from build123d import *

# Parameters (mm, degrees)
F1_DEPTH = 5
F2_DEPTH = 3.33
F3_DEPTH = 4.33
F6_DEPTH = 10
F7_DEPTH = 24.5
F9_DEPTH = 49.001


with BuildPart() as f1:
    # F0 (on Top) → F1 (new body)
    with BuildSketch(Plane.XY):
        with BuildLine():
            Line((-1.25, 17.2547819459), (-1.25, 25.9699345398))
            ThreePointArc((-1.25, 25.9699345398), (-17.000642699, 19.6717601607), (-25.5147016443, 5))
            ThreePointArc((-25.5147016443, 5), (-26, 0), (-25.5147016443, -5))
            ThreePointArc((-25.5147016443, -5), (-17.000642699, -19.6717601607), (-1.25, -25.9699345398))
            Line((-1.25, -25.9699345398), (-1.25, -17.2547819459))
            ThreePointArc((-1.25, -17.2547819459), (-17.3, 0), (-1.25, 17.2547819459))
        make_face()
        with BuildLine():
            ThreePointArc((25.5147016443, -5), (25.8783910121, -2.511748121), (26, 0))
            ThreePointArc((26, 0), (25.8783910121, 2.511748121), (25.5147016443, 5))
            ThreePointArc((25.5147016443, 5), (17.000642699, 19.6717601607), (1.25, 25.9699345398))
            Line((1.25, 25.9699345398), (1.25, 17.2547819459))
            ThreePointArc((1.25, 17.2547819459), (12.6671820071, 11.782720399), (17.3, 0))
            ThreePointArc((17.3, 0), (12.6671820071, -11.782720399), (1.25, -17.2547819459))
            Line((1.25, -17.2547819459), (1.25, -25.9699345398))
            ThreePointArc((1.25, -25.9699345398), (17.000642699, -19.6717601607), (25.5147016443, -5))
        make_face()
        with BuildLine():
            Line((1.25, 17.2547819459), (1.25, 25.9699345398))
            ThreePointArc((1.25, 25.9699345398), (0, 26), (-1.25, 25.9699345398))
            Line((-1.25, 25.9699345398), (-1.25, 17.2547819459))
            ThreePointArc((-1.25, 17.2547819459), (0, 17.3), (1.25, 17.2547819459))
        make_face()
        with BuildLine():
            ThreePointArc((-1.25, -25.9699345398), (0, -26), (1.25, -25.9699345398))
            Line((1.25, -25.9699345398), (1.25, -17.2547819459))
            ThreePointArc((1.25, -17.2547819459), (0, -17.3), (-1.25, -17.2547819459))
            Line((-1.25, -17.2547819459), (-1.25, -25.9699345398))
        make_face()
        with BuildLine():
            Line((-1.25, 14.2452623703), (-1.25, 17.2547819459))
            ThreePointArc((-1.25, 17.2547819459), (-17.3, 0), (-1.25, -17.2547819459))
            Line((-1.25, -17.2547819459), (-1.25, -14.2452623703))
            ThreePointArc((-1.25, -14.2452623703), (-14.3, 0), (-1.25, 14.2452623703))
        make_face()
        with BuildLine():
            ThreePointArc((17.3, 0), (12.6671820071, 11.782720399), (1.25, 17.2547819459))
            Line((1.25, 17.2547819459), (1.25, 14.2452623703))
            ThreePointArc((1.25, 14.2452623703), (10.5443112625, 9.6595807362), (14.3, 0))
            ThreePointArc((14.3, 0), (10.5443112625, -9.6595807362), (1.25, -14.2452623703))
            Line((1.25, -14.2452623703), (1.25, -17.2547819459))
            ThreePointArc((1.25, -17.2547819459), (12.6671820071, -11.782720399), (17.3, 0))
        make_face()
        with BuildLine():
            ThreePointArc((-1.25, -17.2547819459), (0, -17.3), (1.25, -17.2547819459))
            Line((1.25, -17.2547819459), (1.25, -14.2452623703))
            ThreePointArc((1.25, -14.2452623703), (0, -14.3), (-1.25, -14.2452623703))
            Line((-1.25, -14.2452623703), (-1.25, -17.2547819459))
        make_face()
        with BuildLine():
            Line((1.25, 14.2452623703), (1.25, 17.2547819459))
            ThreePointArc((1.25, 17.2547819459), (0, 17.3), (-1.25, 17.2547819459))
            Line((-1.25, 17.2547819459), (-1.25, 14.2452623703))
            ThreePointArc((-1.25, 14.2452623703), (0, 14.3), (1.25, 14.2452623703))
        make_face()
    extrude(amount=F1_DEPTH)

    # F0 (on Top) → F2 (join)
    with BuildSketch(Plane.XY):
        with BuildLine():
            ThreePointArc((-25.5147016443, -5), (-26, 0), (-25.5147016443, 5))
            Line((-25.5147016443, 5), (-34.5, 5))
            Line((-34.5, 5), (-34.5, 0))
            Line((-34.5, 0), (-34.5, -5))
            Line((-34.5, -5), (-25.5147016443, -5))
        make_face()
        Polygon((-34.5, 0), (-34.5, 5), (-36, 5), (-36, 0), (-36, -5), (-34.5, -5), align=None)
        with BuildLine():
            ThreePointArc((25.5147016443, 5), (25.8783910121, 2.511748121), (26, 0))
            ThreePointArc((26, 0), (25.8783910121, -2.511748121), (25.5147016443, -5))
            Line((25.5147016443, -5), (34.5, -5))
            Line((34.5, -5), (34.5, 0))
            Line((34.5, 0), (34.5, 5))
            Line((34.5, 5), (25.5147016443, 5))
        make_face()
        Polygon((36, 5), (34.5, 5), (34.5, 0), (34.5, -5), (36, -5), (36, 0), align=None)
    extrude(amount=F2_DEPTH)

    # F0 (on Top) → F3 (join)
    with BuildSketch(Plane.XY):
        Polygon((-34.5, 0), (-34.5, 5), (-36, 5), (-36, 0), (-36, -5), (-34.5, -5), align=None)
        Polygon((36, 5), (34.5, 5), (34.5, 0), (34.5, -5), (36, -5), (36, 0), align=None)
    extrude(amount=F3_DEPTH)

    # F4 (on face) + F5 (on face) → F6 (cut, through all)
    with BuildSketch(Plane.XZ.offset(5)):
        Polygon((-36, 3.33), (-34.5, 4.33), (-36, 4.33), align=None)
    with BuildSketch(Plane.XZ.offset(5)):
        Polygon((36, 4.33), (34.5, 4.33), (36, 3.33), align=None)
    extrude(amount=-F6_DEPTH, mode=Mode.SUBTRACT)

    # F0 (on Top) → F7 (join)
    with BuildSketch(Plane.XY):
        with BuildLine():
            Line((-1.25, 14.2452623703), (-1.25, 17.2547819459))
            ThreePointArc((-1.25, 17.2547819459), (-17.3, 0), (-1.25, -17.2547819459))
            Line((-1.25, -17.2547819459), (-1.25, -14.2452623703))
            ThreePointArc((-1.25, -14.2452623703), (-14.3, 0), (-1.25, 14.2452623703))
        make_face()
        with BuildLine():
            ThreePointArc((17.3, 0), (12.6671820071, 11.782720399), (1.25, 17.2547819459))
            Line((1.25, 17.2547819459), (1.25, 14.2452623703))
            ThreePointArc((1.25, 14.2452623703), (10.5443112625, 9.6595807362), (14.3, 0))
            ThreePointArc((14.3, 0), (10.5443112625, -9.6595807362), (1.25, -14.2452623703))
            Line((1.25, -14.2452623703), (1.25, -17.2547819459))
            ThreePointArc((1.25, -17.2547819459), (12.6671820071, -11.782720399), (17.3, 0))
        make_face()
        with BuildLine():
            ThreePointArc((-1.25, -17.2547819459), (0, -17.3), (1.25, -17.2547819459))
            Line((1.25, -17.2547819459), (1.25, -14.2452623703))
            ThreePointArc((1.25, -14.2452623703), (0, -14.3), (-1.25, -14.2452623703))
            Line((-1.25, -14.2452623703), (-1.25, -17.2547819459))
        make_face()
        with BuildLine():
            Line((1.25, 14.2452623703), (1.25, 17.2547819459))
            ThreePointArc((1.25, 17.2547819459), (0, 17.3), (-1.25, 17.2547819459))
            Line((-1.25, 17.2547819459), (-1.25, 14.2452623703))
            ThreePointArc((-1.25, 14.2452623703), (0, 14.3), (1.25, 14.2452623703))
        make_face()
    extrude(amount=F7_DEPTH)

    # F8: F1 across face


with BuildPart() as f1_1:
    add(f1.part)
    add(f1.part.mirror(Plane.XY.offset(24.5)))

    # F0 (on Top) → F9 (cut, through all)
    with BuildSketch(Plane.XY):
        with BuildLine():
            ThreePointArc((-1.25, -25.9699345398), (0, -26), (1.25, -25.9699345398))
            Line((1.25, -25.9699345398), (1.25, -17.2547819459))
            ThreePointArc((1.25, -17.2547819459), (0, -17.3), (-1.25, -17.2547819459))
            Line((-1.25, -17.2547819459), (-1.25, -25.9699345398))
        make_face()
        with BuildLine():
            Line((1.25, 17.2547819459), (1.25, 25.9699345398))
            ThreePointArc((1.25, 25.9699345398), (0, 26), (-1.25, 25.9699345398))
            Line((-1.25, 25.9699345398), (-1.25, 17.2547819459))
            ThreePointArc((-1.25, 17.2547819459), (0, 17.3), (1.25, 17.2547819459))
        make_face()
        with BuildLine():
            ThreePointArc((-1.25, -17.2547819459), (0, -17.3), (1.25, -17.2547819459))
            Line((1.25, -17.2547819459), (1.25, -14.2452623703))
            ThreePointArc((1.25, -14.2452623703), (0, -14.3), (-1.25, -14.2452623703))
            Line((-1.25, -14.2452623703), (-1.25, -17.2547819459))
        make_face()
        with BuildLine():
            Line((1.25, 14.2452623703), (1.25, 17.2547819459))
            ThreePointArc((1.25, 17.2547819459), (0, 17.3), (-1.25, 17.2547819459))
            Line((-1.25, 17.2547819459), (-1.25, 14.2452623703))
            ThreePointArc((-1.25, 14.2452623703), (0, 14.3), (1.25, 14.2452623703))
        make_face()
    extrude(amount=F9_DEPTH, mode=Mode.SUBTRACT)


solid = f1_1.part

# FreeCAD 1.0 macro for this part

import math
import FreeCAD as App
import Part
import Sketcher

doc = App.newDocument("Part")
body = doc.addObject("PartDesign::Body", "Body")

# Sketch on XY plane
sketch1 = body.newObject("Sketcher::SketchObject", "Sketch")
sketch1.AttachmentSupport = (doc.getObject("XY_Plane"), [""])
sketch1.MapMode = "FlatFace"
sketch1.addGeometry([
    Part.ArcOfCircle(Part.Circle(App.Vector(0, 0, 0), App.Vector(0, 0, 1), 26), math.radians(92.755667), math.radians(168.912511)),  # 0
    Part.ArcOfCircle(Part.Circle(App.Vector(0, 0, 0), App.Vector(0, 0, 1), 26), math.radians(168.912511), math.radians(191.087489)),  # 1
    Part.ArcOfCircle(Part.Circle(App.Vector(0, 0, 0), App.Vector(0, 0, 1), 26), math.radians(-168.912511), math.radians(-92.755667)),  # 2
    Part.ArcOfCircle(Part.Circle(App.Vector(0, 0, 0), App.Vector(0, 0, 1), 26), math.radians(-92.755667), math.radians(-87.244333)),  # 3
    Part.ArcOfCircle(Part.Circle(App.Vector(0, 0, 0), App.Vector(0, 0, 1), 26), math.radians(-87.244333), math.radians(-11.087489)),  # 4
    Part.ArcOfCircle(Part.Circle(App.Vector(0, 0, 0), App.Vector(0, 0, 1), 26), math.radians(-11.087489), math.radians(0)),  # 5
    Part.ArcOfCircle(Part.Circle(App.Vector(0, 0, 0), App.Vector(0, 0, 1), 26), math.radians(0), math.radians(11.087489)),  # 6
    Part.ArcOfCircle(Part.Circle(App.Vector(0, 0, 0), App.Vector(0, 0, 1), 26), math.radians(11.087489), math.radians(87.244333)),  # 7
    Part.ArcOfCircle(Part.Circle(App.Vector(0, 0, 0), App.Vector(0, 0, 1), 26), math.radians(87.244333), math.radians(92.755667)),  # 8
    Part.ArcOfCircle(Part.Circle(App.Vector(0, 0, 0), App.Vector(0, 0, 1), 14.3), math.radians(-84.985228), math.radians(84.985228)),  # 9
    Part.ArcOfCircle(Part.Circle(App.Vector(0, 0, 0), App.Vector(0, 0, 1), 14.3), math.radians(-95.014772), math.radians(-84.985228)),  # 10
    Part.ArcOfCircle(Part.Circle(App.Vector(0, 0, 0), App.Vector(0, 0, 1), 14.3), math.radians(95.014772), math.radians(264.985228)),  # 11
    Part.ArcOfCircle(Part.Circle(App.Vector(0, 0, 0), App.Vector(0, 0, 1), 14.3), math.radians(84.985228), math.radians(95.014772)),  # 12
], False)
sketch1.addConstraint([
    Sketcher.Constraint("Tangent", 0, 2, 1, 1),
    Sketcher.Constraint("Tangent", 1, 2, 2, 1),
    Sketcher.Constraint("Tangent", 2, 2, 3, 1),
    Sketcher.Constraint("Tangent", 3, 2, 4, 1),
    Sketcher.Constraint("Tangent", 4, 2, 5, 1),
    Sketcher.Constraint("Tangent", 5, 2, 6, 1),
    Sketcher.Constraint("Tangent", 6, 2, 7, 1),
    Sketcher.Constraint("Tangent", 7, 2, 8, 1),
    Sketcher.Constraint("Tangent", 8, 2, 0, 1),
    Sketcher.Constraint("Tangent", 9, 1, 10, 2),
    Sketcher.Constraint("Tangent", 10, 1, 11, 2),
    Sketcher.Constraint("Tangent", 11, 1, 12, 2),
    Sketcher.Constraint("Tangent", 12, 1, 9, 2),
    Sketcher.Constraint("Coincident", 0, 3, -1, 1),
    Sketcher.Constraint("Coincident", 2, 3, -1, 1),
    Sketcher.Constraint("Coincident", 4, 3, -1, 1),
    Sketcher.Constraint("Coincident", 6, 3, -1, 1),
    Sketcher.Constraint("Coincident", 9, 3, -1, 1),
    Sketcher.Constraint("Equal", 9, 10),
    Sketcher.Constraint("PointOnObject", 5, 2, -1),
    Sketcher.Constraint("Horizontal", 2, 2, 3, 2),
    Sketcher.Constraint("Horizontal", 1, 2, 4, 2),
    Sketcher.Constraint("Horizontal", 0, 2, 6, 2),
    Sketcher.Constraint("Horizontal", 7, 2, 8, 2),
    Sketcher.Constraint("Horizontal", 9, 1, 10, 1),
    Sketcher.Constraint("Horizontal", 11, 1, 12, 1),
    Sketcher.Constraint("Vertical", 0, 2, 1, 2),
    Sketcher.Constraint("Vertical", 3, 2, 7, 2),
    Sketcher.Constraint("Vertical", 7, 2, 9, 1),
    Sketcher.Constraint("Vertical", 10, 1, 11, 1),
    Sketcher.Constraint("Radius", 0, 26.0),
    Sketcher.Constraint("Radius", 9, 14.3),
    Sketcher.Constraint("DistanceY", -1, 1, 0, 2, 5.0),
    Sketcher.Constraint("DistanceX", 2, 2, 3, 2, 2.5),
])
pad1 = body.newObject("PartDesign::Pad", "Pad")
pad1.Profile = sketch1
pad1.Length = 5

# Sketch on XY plane
sketch2 = body.newObject("Sketcher::SketchObject", "Sketch001")
sketch2.AttachmentSupport = (doc.getObject("XY_Plane"), [""])
sketch2.MapMode = "FlatFace"
sketch2.addGeometry([
    Part.ArcOfCircle(Part.Circle(App.Vector(0, 0, 0), App.Vector(0, 0, 1), 26), math.radians(168.912511), math.radians(191.087489)),  # 0
    Part.LineSegment(App.Vector(-25.514702, 5, 0), App.Vector(-36, 5, 0)),  # 1
    Part.LineSegment(App.Vector(-36, 5, 0), App.Vector(-36, -5, 0)),  # 2
    Part.LineSegment(App.Vector(-36, -5, 0), App.Vector(-25.514702, -5, 0)),  # 3
    Part.ArcOfCircle(Part.Circle(App.Vector(0, 0, 0), App.Vector(0, 0, 1), 26), math.radians(0), math.radians(11.087489)),  # 4
    Part.ArcOfCircle(Part.Circle(App.Vector(0, 0, 0), App.Vector(0, 0, 1), 26), math.radians(-11.087489), math.radians(0)),  # 5
    Part.LineSegment(App.Vector(25.514702, -5, 0), App.Vector(36, -5, 0)),  # 6
    Part.LineSegment(App.Vector(36, -5, 0), App.Vector(36, 5, 0)),  # 7
    Part.LineSegment(App.Vector(36, 5, 0), App.Vector(25.514702, 5, 0)),  # 8
], False)
sketch2.addConstraint([
    Sketcher.Constraint("Coincident", 0, 1, 1, 1),
    Sketcher.Constraint("Coincident", 1, 2, 2, 1),
    Sketcher.Constraint("Coincident", 2, 2, 3, 1),
    Sketcher.Constraint("Coincident", 3, 2, 0, 2),
    Sketcher.Constraint("Tangent", 4, 1, 5, 2),
    Sketcher.Constraint("Coincident", 5, 1, 6, 1),
    Sketcher.Constraint("Coincident", 6, 2, 7, 1),
    Sketcher.Constraint("Coincident", 7, 2, 8, 1),
    Sketcher.Constraint("Coincident", 8, 2, 4, 2),
    Sketcher.Constraint("Horizontal", 1),
    Sketcher.Constraint("Vertical", 2),
    Sketcher.Constraint("Horizontal", 3),
    Sketcher.Constraint("Horizontal", 6),
    Sketcher.Constraint("Vertical", 7),
    Sketcher.Constraint("Horizontal", 8),
    Sketcher.Constraint("Coincident", 0, 3, -1, 1),
    Sketcher.Constraint("Coincident", 4, 3, -1, 1),
    Sketcher.Constraint("Equal", 0, 4),
    Sketcher.Constraint("Equal", 4, 5),
    Sketcher.Constraint("Symmetric", 1, 2, 6, 2, -1, 1),
    Sketcher.Constraint("PointOnObject", 4, 1, -1),
    Sketcher.Constraint("Horizontal", 3, 2, 5, 1),
    Sketcher.Constraint("Horizontal", 1, 2, 7, 2),
    Sketcher.Constraint("Radius", 0, 26.0),
    Sketcher.Constraint("DistanceY", 2, 2, 2, 1, 10.0),
    Sketcher.Constraint("DistanceX", 1, 2, -1, 1, 36.0),
])
pad2 = body.newObject("PartDesign::Pad", "Pad001")
pad2.Profile = sketch2
pad2.Length = 3.33

# Sketch on XY plane
sketch3 = body.newObject("Sketcher::SketchObject", "Sketch002")
sketch3.AttachmentSupport = (doc.getObject("XY_Plane"), [""])
sketch3.MapMode = "FlatFace"
sketch3.addGeometry([
    Part.LineSegment(App.Vector(-34.5, 5, 0), App.Vector(-36, 5, 0)),  # 0
    Part.LineSegment(App.Vector(-36, 5, 0), App.Vector(-36, -5, 0)),  # 1
    Part.LineSegment(App.Vector(-36, -5, 0), App.Vector(-34.5, -5, 0)),  # 2
    Part.LineSegment(App.Vector(-34.5, -5, 0), App.Vector(-34.5, 5, 0)),  # 3
    Part.LineSegment(App.Vector(36, 5, 0), App.Vector(34.5, 5, 0)),  # 4
    Part.LineSegment(App.Vector(34.5, 5, 0), App.Vector(34.5, -5, 0)),  # 5
    Part.LineSegment(App.Vector(34.5, -5, 0), App.Vector(36, -5, 0)),  # 6
    Part.LineSegment(App.Vector(36, -5, 0), App.Vector(36, 5, 0)),  # 7
], False)
sketch3.addConstraint([
    Sketcher.Constraint("Coincident", 0, 2, 1, 1),
    Sketcher.Constraint("Coincident", 1, 2, 2, 1),
    Sketcher.Constraint("Coincident", 2, 2, 3, 1),
    Sketcher.Constraint("Coincident", 3, 2, 0, 1),
    Sketcher.Constraint("Coincident", 4, 2, 5, 1),
    Sketcher.Constraint("Coincident", 5, 2, 6, 1),
    Sketcher.Constraint("Coincident", 6, 2, 7, 1),
    Sketcher.Constraint("Coincident", 7, 2, 4, 1),
    Sketcher.Constraint("Horizontal", 0),
    Sketcher.Constraint("Vertical", 1),
    Sketcher.Constraint("Horizontal", 2),
    Sketcher.Constraint("Vertical", 3),
    Sketcher.Constraint("Horizontal", 4),
    Sketcher.Constraint("Vertical", 5),
    Sketcher.Constraint("Horizontal", 6),
    Sketcher.Constraint("Vertical", 7),
    Sketcher.Constraint("Symmetric", 2, 2, 4, 2, -1, 1),
    Sketcher.Constraint("Symmetric", 0, 2, 6, 2, -1, 1),
    Sketcher.Constraint("Horizontal", 3, 2, 4, 2),
    Sketcher.Constraint("DistanceY", 1, 2, 1, 1, 10.0),
    Sketcher.Constraint("DistanceX", 0, 2, 0, 1, 1.5),
    Sketcher.Constraint("DistanceX", 0, 2, -1, 1, 36.0),
])
pad3 = body.newObject("PartDesign::Pad", "Pad002")
pad3.Profile = sketch3
pad3.Length = 4.33

# Sketch on XZ plane
sketch4 = body.newObject("Sketcher::SketchObject", "Sketch003")
sketch4.AttachmentSupport = (doc.getObject("XZ_Plane"), [""])
sketch4.MapMode = "FlatFace"
sketch4.AttachmentOffset = App.Placement(App.Vector(0, 0, 5), App.Rotation())
sketch4.addGeometry([
    Part.LineSegment(App.Vector(-36, 3.33, 0), App.Vector(-34.5, 4.33, 0)),  # 0
    Part.LineSegment(App.Vector(-34.5, 4.33, 0), App.Vector(-36, 4.33, 0)),  # 1
    Part.LineSegment(App.Vector(-36, 4.33, 0), App.Vector(-36, 3.33, 0)),  # 2
    Part.LineSegment(App.Vector(36, 4.33, 0), App.Vector(34.5, 4.33, 0)),  # 3
    Part.LineSegment(App.Vector(34.5, 4.33, 0), App.Vector(36, 3.33, 0)),  # 4
    Part.LineSegment(App.Vector(36, 3.33, 0), App.Vector(36, 4.33, 0)),  # 5
], False)
sketch4.addConstraint([
    Sketcher.Constraint("Coincident", 0, 2, 1, 1),
    Sketcher.Constraint("Coincident", 1, 2, 2, 1),
    Sketcher.Constraint("Coincident", 2, 2, 0, 1),
    Sketcher.Constraint("Coincident", 3, 2, 4, 1),
    Sketcher.Constraint("Coincident", 4, 2, 5, 1),
    Sketcher.Constraint("Coincident", 5, 2, 3, 1),
    Sketcher.Constraint("Horizontal", 1),
    Sketcher.Constraint("Vertical", 2),
    Sketcher.Constraint("Horizontal", 3),
    Sketcher.Constraint("Vertical", 5),
    Sketcher.Constraint("Symmetric", 0, 2, 3, 2, -2),
    Sketcher.Constraint("Symmetric", 2, 2, 4, 2, -2),
    Sketcher.Constraint("DistanceY", 2, 2, 2, 1, 1.0),
    Sketcher.Constraint("DistanceX", 1, 2, 1, 1, 1.5),
    Sketcher.Constraint("DistanceX", 1, 2, -1, 1, 36.0),
    Sketcher.Constraint("DistanceY", -1, 1, 0, 2, 4.33),
])
pocket1 = body.newObject("PartDesign::Pocket", "Pocket")
pocket1.Profile = sketch4
pocket1.Type = "ThroughAll"

# Sketch on XY plane
sketch5 = body.newObject("Sketcher::SketchObject", "Sketch004")
sketch5.AttachmentSupport = (doc.getObject("XY_Plane"), [""])
sketch5.MapMode = "FlatFace"
sketch5.addGeometry([
    Part.ArcOfCircle(Part.Circle(App.Vector(0, 0, 0), App.Vector(0, 0, 1), 17.3), math.radians(94.143479), math.radians(265.856521)),  # 0
    Part.ArcOfCircle(Part.Circle(App.Vector(0, 0, 0), App.Vector(0, 0, 1), 17.3), math.radians(-94.143479), math.radians(-85.856521)),  # 1
    Part.ArcOfCircle(Part.Circle(App.Vector(0, 0, 0), App.Vector(0, 0, 1), 17.3), math.radians(-85.856521), math.radians(0)),  # 2
    Part.ArcOfCircle(Part.Circle(App.Vector(0, 0, 0), App.Vector(0, 0, 1), 17.3), math.radians(0), math.radians(85.856521)),  # 3
    Part.ArcOfCircle(Part.Circle(App.Vector(0, 0, 0), App.Vector(0, 0, 1), 17.3), math.radians(85.856521), math.radians(94.143479)),  # 4
    Part.ArcOfCircle(Part.Circle(App.Vector(0, 0, 0), App.Vector(0, 0, 1), 14.3), math.radians(-84.985228), math.radians(84.985228)),  # 5
    Part.ArcOfCircle(Part.Circle(App.Vector(0, 0, 0), App.Vector(0, 0, 1), 14.3), math.radians(-95.014772), math.radians(-84.985228)),  # 6
    Part.ArcOfCircle(Part.Circle(App.Vector(0, 0, 0), App.Vector(0, 0, 1), 14.3), math.radians(95.014772), math.radians(264.985228)),  # 7
    Part.ArcOfCircle(Part.Circle(App.Vector(0, 0, 0), App.Vector(0, 0, 1), 14.3), math.radians(84.985228), math.radians(95.014772)),  # 8
], False)
sketch5.addConstraint([
    Sketcher.Constraint("Tangent", 0, 2, 1, 1),
    Sketcher.Constraint("Tangent", 1, 2, 2, 1),
    Sketcher.Constraint("Tangent", 2, 2, 3, 1),
    Sketcher.Constraint("Tangent", 3, 2, 4, 1),
    Sketcher.Constraint("Tangent", 4, 2, 0, 1),
    Sketcher.Constraint("Tangent", 5, 1, 6, 2),
    Sketcher.Constraint("Tangent", 6, 1, 7, 2),
    Sketcher.Constraint("Tangent", 7, 1, 8, 2),
    Sketcher.Constraint("Tangent", 8, 1, 5, 2),
    Sketcher.Constraint("Coincident", 0, 3, -1, 1),
    Sketcher.Constraint("Coincident", 2, 3, -1, 1),
    Sketcher.Constraint("Coincident", 5, 3, -1, 1),
    Sketcher.Constraint("Equal", 5, 6),
    Sketcher.Constraint("PointOnObject", 2, 2, -1),
    Sketcher.Constraint("Horizontal", 0, 2, 1, 2),
    Sketcher.Constraint("Horizontal", 3, 2, 4, 2),
    Sketcher.Constraint("Horizontal", 5, 1, 6, 1),
    Sketcher.Constraint("Horizontal", 7, 1, 8, 1),
    Sketcher.Constraint("Vertical", 1, 2, 3, 2),
    Sketcher.Constraint("Vertical", 3, 2, 5, 1),
    Sketcher.Constraint("Vertical", 6, 1, 7, 1),
    Sketcher.Constraint("Radius", 0, 17.3),
    Sketcher.Constraint("Radius", 5, 14.3),
    Sketcher.Constraint("DistanceX", 0, 2, 1, 2, 2.5),
])
pad4 = body.newObject("PartDesign::Pad", "Pad003")
pad4.Profile = sketch5
pad4.Length = 24.5
body2 = doc.addObject("PartDesign::Body", "Body001")
body2.AllowCompound = True
doc.recompute()

body2.BaseFeature = body
doc.recompute()

mirroring = doc.addObject("Part::Mirroring", "Mirroring")
mirroring.Source = body
mirroring.Base = App.Vector(0, 0, 24.5)
mirroring.Normal = App.Vector(0, 0, 1)
body3 = doc.addObject("PartDesign::Body", "Body002")
body3.BaseFeature = mirroring
boolean = body2.newObject("PartDesign::Boolean", "Boolean")
boolean.Type = "Fuse"
boolean.addObjects([body3])
doc.recompute()

# Sketch on XY plane
sketch6 = body2.newObject("Sketcher::SketchObject", "Sketch005")
sketch6.AttachmentSupport = (doc.getObject("XY_Plane001"), [""])
sketch6.MapMode = "FlatFace"
sketch6.addGeometry([
    Part.ArcOfCircle(Part.Circle(App.Vector(0, 0, 0), App.Vector(0, 0, 1), 26), math.radians(-92.755667), math.radians(-87.244333)),  # 0
    Part.LineSegment(App.Vector(1.25, -25.969935, 0), App.Vector(1.25, -14.245262, 0)),  # 1
    Part.ArcOfCircle(Part.Circle(App.Vector(0, 0, 0), App.Vector(0, 0, 1), 14.3), math.radians(-95.014772), math.radians(-84.985228)),  # 2
    Part.LineSegment(App.Vector(-1.25, -14.245262, 0), App.Vector(-1.25, -25.969935, 0)),  # 3
    Part.ArcOfCircle(Part.Circle(App.Vector(0, 0, 0), App.Vector(0, 0, 1), 26), math.radians(87.244333), math.radians(92.755667)),  # 4
    Part.LineSegment(App.Vector(-1.25, 25.969935, 0), App.Vector(-1.25, 14.245262, 0)),  # 5
    Part.ArcOfCircle(Part.Circle(App.Vector(0, 0, 0), App.Vector(0, 0, 1), 14.3), math.radians(84.985228), math.radians(95.014772)),  # 6
    Part.LineSegment(App.Vector(1.25, 14.245262, 0), App.Vector(1.25, 25.969935, 0)),  # 7
], False)
sketch6.addConstraint([
    Sketcher.Constraint("Coincident", 0, 2, 1, 1),
    Sketcher.Constraint("Coincident", 1, 2, 2, 2),
    Sketcher.Constraint("Coincident", 2, 1, 3, 1),
    Sketcher.Constraint("Coincident", 3, 2, 0, 1),
    Sketcher.Constraint("Coincident", 4, 2, 5, 1),
    Sketcher.Constraint("Coincident", 5, 2, 6, 2),
    Sketcher.Constraint("Coincident", 6, 1, 7, 1),
    Sketcher.Constraint("Coincident", 7, 2, 4, 1),
    Sketcher.Constraint("Vertical", 1),
    Sketcher.Constraint("Vertical", 3),
    Sketcher.Constraint("Vertical", 5),
    Sketcher.Constraint("Vertical", 7),
    Sketcher.Constraint("Coincident", 0, 3, -1, 1),
    Sketcher.Constraint("Coincident", 2, 3, -1, 1),
    Sketcher.Constraint("Coincident", 4, 3, -1, 1),
    Sketcher.Constraint("Coincident", 6, 3, -1, 1),
    Sketcher.Constraint("Equal", 0, 4),
    Sketcher.Constraint("Equal", 2, 6),
    Sketcher.Constraint("Horizontal", 1, 2, 2, 1),
    Sketcher.Constraint("Horizontal", 5, 2, 6, 1),
    Sketcher.Constraint("Vertical", 3, 2, 4, 2),
    Sketcher.Constraint("Radius", 0, 26.0),
    Sketcher.Constraint("Radius", 2, 14.3),
    Sketcher.Constraint("DistanceX", 2, 1, 1, 2, 2.5),
])
pocket2 = body2.newObject("PartDesign::Pocket", "Pocket001")
pocket2.Profile = sketch6
pocket2.Type = "ThroughAll"
pocket2.Reversed = True
mirroring.Visibility = False

doc.recompute()
